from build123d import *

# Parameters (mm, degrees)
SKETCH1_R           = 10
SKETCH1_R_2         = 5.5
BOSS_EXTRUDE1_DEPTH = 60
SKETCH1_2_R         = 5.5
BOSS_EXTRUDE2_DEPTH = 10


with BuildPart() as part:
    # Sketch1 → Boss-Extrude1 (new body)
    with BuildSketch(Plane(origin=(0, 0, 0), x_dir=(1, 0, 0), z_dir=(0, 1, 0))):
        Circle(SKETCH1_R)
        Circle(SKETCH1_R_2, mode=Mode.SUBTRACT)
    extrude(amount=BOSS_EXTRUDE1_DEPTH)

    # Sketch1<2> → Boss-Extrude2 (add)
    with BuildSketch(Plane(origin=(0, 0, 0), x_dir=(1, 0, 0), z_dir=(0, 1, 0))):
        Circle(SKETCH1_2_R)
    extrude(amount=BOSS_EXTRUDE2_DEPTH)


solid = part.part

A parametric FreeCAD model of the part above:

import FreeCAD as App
import Part
import Sketcher
Q = App.Units.Quantity

doc = App.newDocument("Part")
body = doc.addObject("PartDesign::Body", "Body")

# Sketch on XZ plane
sketch1 = body.newObject("Sketcher::SketchObject", "Sketch")
sketch1.AttachmentSupport = (doc.getObject("XZ_Plane"), [""])
sketch1.MapMode = "FlatFace"
sketch1.addGeometry([
    Part.Circle(App.Vector(0, 0, 0), App.Vector(0, 0, 1), 10),
    Part.Circle(App.Vector(0, 0, 0), App.Vector(0, 0, 1), 5.5),
], False)
sketch1.addConstraint([
    Sketcher.Constraint("Coincident", 0, 3, -1, 1),
    Sketcher.Constraint("Coincident", 1, 3, -1, 1),
    Sketcher.Constraint("Diameter", 0, Q("20 mm")),
    Sketcher.Constraint("Diameter", 1, Q("11 mm")),
])
pad1 = body.newObject("PartDesign::Pad", "Pad")
pad1.Profile = sketch1
pad1.Length = 60
pad1.Reversed = True

# Sketch on XZ plane
sketch2 = body.newObject("Sketcher::SketchObject", "Sketch001")
sketch2.AttachmentSupport = (doc.getObject("XZ_Plane"), [""])
sketch2.MapMode = "FlatFace"
sketch2.addGeometry(Part.Circle(App.Vector(0, 0, 0), App.Vector(0, 0, 1), 5.5), False)
sketch2.addConstraint([
    Sketcher.Constraint("Coincident", 0, 3, -1, 1),
    Sketcher.Constraint("Diameter", 0, Q("11 mm")),
])
pad2 = body.newObject("PartDesign::Pad", "Pad001")
pad2.Profile = sketch2
pad2.Length = 10
pad2.Reversed = True

doc.recompute()
